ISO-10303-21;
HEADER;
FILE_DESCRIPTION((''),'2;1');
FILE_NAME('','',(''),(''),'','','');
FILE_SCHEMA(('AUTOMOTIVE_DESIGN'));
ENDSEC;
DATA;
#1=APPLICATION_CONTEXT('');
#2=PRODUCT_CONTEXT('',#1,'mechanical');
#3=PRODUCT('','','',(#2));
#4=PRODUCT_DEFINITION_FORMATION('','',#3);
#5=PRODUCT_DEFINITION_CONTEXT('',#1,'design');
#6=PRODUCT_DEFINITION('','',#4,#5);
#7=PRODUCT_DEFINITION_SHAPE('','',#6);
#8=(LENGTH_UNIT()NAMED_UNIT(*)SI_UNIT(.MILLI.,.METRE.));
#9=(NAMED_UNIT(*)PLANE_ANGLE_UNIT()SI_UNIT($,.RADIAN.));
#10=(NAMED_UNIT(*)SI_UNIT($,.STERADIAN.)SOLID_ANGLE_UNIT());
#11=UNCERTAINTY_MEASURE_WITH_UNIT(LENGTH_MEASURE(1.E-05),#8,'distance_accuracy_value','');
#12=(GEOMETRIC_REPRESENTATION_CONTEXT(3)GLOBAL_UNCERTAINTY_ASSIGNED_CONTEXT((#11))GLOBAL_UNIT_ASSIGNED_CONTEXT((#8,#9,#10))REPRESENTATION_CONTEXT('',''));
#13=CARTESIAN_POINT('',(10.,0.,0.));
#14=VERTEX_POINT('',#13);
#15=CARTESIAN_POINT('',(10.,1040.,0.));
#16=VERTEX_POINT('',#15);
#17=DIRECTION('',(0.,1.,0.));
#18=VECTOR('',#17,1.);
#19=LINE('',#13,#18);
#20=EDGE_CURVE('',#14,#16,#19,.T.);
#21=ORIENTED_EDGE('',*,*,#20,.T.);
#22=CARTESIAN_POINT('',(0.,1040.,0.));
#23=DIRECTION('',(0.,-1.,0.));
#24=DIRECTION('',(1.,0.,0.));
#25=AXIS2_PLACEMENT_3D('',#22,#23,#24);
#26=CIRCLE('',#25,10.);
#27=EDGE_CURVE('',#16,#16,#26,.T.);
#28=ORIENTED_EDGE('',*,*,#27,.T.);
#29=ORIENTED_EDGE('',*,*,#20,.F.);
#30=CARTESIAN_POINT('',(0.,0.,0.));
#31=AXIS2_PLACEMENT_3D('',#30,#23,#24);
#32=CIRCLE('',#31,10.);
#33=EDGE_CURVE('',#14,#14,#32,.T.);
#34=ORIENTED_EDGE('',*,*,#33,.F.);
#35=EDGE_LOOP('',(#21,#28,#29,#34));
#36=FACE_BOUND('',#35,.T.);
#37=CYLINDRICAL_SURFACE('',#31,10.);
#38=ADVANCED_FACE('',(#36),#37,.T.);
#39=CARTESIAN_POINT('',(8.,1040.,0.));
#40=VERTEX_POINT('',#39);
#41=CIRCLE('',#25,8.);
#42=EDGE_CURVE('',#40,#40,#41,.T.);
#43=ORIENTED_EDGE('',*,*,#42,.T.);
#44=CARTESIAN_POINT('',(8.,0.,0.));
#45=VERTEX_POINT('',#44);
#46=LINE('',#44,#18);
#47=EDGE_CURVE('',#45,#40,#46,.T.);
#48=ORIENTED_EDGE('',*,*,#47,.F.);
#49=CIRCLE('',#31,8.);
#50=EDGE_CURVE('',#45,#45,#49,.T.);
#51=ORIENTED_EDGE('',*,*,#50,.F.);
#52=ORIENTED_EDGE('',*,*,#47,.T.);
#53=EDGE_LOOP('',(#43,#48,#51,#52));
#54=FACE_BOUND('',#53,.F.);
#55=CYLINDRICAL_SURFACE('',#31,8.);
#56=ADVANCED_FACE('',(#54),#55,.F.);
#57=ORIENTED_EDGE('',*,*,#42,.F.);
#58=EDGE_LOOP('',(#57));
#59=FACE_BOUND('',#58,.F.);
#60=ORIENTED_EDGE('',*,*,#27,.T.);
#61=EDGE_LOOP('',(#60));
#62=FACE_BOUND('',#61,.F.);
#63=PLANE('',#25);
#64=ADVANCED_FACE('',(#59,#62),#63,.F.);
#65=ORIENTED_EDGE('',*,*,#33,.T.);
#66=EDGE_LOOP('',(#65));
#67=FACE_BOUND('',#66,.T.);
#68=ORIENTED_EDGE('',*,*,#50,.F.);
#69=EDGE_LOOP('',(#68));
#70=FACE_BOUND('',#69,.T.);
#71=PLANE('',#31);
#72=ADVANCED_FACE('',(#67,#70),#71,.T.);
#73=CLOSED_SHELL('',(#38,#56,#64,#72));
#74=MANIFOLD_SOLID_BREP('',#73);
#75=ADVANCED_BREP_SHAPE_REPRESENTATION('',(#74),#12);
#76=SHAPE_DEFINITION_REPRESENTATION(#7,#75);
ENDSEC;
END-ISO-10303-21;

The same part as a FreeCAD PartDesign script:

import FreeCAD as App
import Part
import Sketcher

V = App.Vector

doc = App.newDocument("Part")
params = doc.addObject("Spreadsheet::Sheet", "Params")
for row, (alias, value) in enumerate([
    ("sketch1_diameter", "20 mm"),
    ("sketch1_diameter2", "16 mm"),
    ("pad1_length", "1040 mm"),
], start=1):
    params.set(f"A{row}", alias)
    params.set(f"B{row}", "=" + value)
    params.setAlias(f"B{row}", alias)

body = doc.addObject("PartDesign::Body", "Body")

# Sketch on XZ plane
sketch1 = body.newObject("Sketcher::SketchObject", "Sketch")
sketch1.AttachmentSupport = (doc.getObject("XZ_Plane"), [""])
sketch1.MapMode = "FlatFace"
sketch1.addGeometry([
    Part.Circle(V(0, 0, 0), V(0, 0, 1), 10),
    Part.Circle(V(0, 0, 0), V(0, 0, 1), 8),
], False)
sketch1.addConstraint([
    Sketcher.Constraint("Coincident", 0, 3, -1, 1),
    Sketcher.Constraint("Coincident", 1, 3, -1, 1),
    Sketcher.Constraint("Diameter", 0, 20.0),
    Sketcher.Constraint("Diameter", 1, 16.0),
])
sketch1.setExpression("Constraints[2]", "Params.sketch1_diameter")
sketch1.setExpression("Constraints[3]", "Params.sketch1_diameter2")
pad1 = body.newObject("PartDesign::Pad", "Pad")
pad1.Profile = sketch1
pad1.setExpression("Length", "Params.pad1_length")
pad1.Reversed = True

doc.recompute()
